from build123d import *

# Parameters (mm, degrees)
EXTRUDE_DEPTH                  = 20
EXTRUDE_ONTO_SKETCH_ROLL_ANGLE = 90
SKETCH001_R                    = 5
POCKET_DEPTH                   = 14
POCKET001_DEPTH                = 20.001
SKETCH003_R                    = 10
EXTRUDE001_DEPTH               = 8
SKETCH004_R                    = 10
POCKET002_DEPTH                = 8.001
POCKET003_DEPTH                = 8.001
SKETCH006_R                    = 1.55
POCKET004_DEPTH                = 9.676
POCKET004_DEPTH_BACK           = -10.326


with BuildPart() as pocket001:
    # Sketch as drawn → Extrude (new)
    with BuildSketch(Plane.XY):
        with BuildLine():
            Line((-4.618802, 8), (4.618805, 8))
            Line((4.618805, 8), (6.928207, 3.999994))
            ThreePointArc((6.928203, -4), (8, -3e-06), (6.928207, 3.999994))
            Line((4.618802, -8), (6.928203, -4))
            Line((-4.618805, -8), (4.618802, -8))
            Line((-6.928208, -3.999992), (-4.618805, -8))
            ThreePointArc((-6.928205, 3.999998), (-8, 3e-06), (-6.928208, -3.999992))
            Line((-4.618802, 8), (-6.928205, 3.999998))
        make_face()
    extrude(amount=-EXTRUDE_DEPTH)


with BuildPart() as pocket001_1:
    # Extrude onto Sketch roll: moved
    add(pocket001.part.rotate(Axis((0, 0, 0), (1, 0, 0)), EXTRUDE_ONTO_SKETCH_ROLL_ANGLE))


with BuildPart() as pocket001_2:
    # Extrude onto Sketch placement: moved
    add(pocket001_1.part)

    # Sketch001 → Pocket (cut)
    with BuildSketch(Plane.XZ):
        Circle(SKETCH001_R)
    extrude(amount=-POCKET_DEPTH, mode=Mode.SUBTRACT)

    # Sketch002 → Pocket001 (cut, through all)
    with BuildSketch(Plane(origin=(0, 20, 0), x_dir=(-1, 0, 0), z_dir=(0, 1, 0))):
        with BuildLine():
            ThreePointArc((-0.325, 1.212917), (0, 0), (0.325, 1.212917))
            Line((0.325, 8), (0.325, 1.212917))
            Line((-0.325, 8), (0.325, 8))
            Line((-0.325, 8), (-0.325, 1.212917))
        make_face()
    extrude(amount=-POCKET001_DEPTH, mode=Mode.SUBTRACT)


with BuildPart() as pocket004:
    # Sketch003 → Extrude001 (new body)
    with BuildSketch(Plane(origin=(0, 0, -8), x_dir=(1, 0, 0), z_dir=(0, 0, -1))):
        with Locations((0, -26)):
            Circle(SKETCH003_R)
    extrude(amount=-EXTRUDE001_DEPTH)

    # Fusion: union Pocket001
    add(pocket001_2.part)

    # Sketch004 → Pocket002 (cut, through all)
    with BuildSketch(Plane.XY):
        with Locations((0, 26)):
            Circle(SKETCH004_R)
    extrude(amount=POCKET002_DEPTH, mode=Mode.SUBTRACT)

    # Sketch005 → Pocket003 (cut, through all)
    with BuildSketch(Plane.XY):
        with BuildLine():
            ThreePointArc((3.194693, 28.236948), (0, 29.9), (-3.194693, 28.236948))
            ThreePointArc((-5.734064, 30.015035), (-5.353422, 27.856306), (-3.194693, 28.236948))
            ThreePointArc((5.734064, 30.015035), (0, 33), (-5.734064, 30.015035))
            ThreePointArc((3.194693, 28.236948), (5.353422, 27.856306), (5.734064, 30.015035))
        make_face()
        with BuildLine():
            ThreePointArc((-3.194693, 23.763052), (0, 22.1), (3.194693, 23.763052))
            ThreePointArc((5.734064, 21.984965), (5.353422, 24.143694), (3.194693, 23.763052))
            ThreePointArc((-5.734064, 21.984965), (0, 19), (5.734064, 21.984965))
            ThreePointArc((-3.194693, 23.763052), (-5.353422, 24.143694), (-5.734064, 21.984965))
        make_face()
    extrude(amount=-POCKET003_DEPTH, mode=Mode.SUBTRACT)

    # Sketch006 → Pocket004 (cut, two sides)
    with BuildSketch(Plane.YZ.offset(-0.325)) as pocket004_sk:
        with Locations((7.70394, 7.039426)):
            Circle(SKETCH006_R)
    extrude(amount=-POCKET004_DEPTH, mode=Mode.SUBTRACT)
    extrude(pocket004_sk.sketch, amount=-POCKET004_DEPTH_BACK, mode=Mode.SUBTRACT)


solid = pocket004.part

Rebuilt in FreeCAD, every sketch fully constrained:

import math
import FreeCAD as App
import Part
import Sketcher
Q = App.Units.Quantity

doc = App.newDocument("Part")
params = doc.addObject("Spreadsheet::Sheet", "Params")
for row, (alias, value) in enumerate([
    ("sketch1_radius", "8 mm"),
    ("pad1_length", "20 mm"),
    ("sketch2_diameter", "10 mm"),
    ("pocket1_length", "14 mm"),
    ("sketch3_radius", "0.65 mm"),
    ("sketch3_width", "0.65 mm"),
    ("sketch4_diameter", "20 mm"),
    ("pad2_length", "8 mm"),
    ("sketch5_diameter", "20 mm"),
    ("sketch6_radius", "6.999999 mm"),
    ("sketch6_radius2", "3.9 mm"),
    ("sketch7_diameter", "3.1 mm"),
], start=1):
    params.set(f"A{row}", alias)
    params.set(f"B{row}", "=" + value)
    params.setAlias(f"B{row}", alias)

body = doc.addObject("PartDesign::Body", "Body")

sketch1 = body.newObject("Sketcher::SketchObject", "Sketch")
sketch1.AttachmentSupport = (doc.getObject("XY_Plane"), [""])
sketch1.MapMode = "FlatFace"
sketch1.addGeometry(Part.LineSegment(App.Vector(4.6, 8, 0), App.Vector(-4.6, 8, 0)), False)
sketch1.addGeometry(Part.LineSegment(App.Vector(-4.6, 8, 0), App.Vector(-6.9, 4, 0)), False)
sketch1.addGeometry(Part.ArcOfCircle(Part.Circle(App.Vector(0, 0, 0), App.Vector(0, 0, 1), 8), math.radians(150), math.radians(210)), False)
sketch1.addGeometry(Part.LineSegment(App.Vector(-6.9, -4, 0), App.Vector(-4.6, -8, 0)), False)
sketch1.addGeometry(Part.LineSegment(App.Vector(-4.6, -8, 0), App.Vector(4.6, -8, 0)), False)
sketch1.addGeometry(Part.LineSegment(App.Vector(4.6, -8, 0), App.Vector(6.9, -4, 0)), False)
sketch1.addGeometry(Part.ArcOfCircle(Part.Circle(App.Vector(0, 0, 0), App.Vector(0, 0, 1), 8), math.radians(-30), math.radians(30)), False)
sketch1.addGeometry(Part.LineSegment(App.Vector(6.9, 4, 0), App.Vector(4.6, 8, 0)), False)
sketch1.addConstraint(Sketcher.Constraint("Coincident", 0, 2, 1, 1))
sketch1.addConstraint(Sketcher.Constraint("Tangent", 1, 2, 2, 1))
sketch1.addConstraint(Sketcher.Constraint("Tangent", 2, 2, 3, 1))
sketch1.addConstraint(Sketcher.Constraint("Coincident", 3, 2, 4, 1))
sketch1.addConstraint(Sketcher.Constraint("Coincident", 4, 2, 5, 1))
sketch1.addConstraint(Sketcher.Constraint("Tangent", 5, 2, 6, 1))
sketch1.addConstraint(Sketcher.Constraint("Tangent", 6, 2, 7, 1))
sketch1.addConstraint(Sketcher.Constraint("Coincident", 7, 2, 0, 1))
sketch1.addConstraint(Sketcher.Constraint("Horizontal", 0))
sketch1.addConstraint(Sketcher.Constraint("Horizontal", 4))
sketch1.addConstraint(Sketcher.Constraint("Coincident", 2, 3, -1, 1))
sketch1.addConstraint(Sketcher.Constraint("Coincident", 6, 3, -1, 1))
sketch1.addConstraint(Sketcher.Constraint("Symmetric", 0, 2, 4, 2, -1, 1))
sketch1.addConstraint(Sketcher.Constraint("Symmetric", 2, 2, 6, 2, -1, 1))
sketch1.addConstraint(Sketcher.Constraint("Radius", 6, 8.0))
sketch1.addConstraint(Sketcher.Constraint("Angle", 1, Q("-120.000008 deg")))
sketch1.addConstraint(Sketcher.Constraint("DistanceY", -1, 1, 0, 2, 8.0))
sketch1.addConstraint(Sketcher.Constraint("DistanceX", 1, 2, 3, 2, 2.3094))
sketch1.setExpression("Constraints[14]", "Params.sketch1_radius")
pad1 = body.newObject("PartDesign::Pad", "Pad")
pad1.Profile = sketch1
pad1.setExpression("Length", "Params.pad1_length")
pad1.Reversed = True
body2 = doc.addObject("PartDesign::Body", "Body001")
doc.recompute()

body.Placement = App.Placement(App.Vector(0, 0, 0), App.Rotation(App.Vector(1, 0, 0), 90))
boolean = body2.newObject("PartDesign::Boolean", "Boolean")
boolean.Type = "Fuse"
boolean.addObjects([body])

sketch2 = body2.newObject("Sketcher::SketchObject", "Sketch001")
sketch2.AttachmentSupport = (doc.getObject("XZ_Plane001"), [""])
sketch2.MapMode = "FlatFace"
sketch2.addGeometry(Part.Circle(App.Vector(0, 0, 0), App.Vector(0, 0, 1), 5), False)
sketch2.addConstraint(Sketcher.Constraint("Coincident", 0, 3, -1, 1))
sketch2.addConstraint(Sketcher.Constraint("Diameter", 0, 10.0))
sketch2.setExpression("Constraints[1]", "Params.sketch2_diameter")
pocket1 = body2.newObject("PartDesign::Pocket", "Pocket")
pocket1.Profile = sketch2
pocket1.setExpression("Length", "Params.pocket1_length")

sketch3 = body2.newObject("Sketcher::SketchObject", "Sketch002")
sketch3.AttachmentSupport = (doc.getObject("XZ_Plane001"), [""])
sketch3.MapMode = "FlatFace"
sketch3.AttachmentOffset = App.Placement(App.Vector(0, 0, -20), App.Rotation())
sketch3.addGeometry(Part.ArcOfCircle(Part.Circle(App.Vector(0, 0.7, 0), App.Vector(0, 0, 1), 0.7), math.radians(120), math.radians(420)), False)
sketch3.addGeometry(Part.LineSegment(App.Vector(-0.3, 1.2, 0), App.Vector(-0.3, 8, 0)), False)
sketch3.addGeometry(Part.LineSegment(App.Vector(-0.3, 8, 0), App.Vector(0.3, 8, 0)), False)
sketch3.addGeometry(Part.LineSegment(App.Vector(0.3, 8, 0), App.Vector(0.3, 1.2, 0)), False)
sketch3.addConstraint(Sketcher.Constraint("Coincident", 0, 1, 1, 1))
sketch3.addConstraint(Sketcher.Constraint("Coincident", 1, 2, 2, 1))
sketch3.addConstraint(Sketcher.Constraint("Coincident", 2, 2, 3, 1))
sketch3.addConstraint(Sketcher.Constraint("Coincident", 3, 2, 0, 2))
sketch3.addConstraint(Sketcher.Constraint("Vertical", 1))
sketch3.addConstraint(Sketcher.Constraint("Horizontal", 2))
sketch3.addConstraint(Sketcher.Constraint("Vertical", 3))
sketch3.addConstraint(Sketcher.Constraint("Symmetric", 0, 1, 3, 2, -2))
sketch3.addConstraint(Sketcher.Constraint("Radius", 0, 0.65))
sketch3.addConstraint(Sketcher.Constraint("DistanceY", -1, 1, 1, 2, 8.0))
sketch3.addConstraint(Sketcher.Constraint("DistanceX", 2, 1, 2, 2, 0.65))
sketch3.addConstraint(Sketcher.Constraint("DistanceY", -1, 1, 0, 3, 0.65))
sketch3.setExpression("Constraints[8]", "Params.sketch3_radius")
sketch3.setExpression("Constraints[10]", "Params.sketch3_width")
pocket2 = body2.newObject("PartDesign::Pocket", "Pocket001")
pocket2.Profile = sketch3
pocket2.Type = "ThroughAll"
pocket2.Reversed = True
body3 = doc.addObject("PartDesign::Body", "Body002")

sketch4 = body3.newObject("Sketcher::SketchObject", "Sketch003")
sketch4.AttachmentSupport = (doc.getObject("XY_Plane002"), [""])
sketch4.MapMode = "FlatFace"
sketch4.AttachmentOffset = App.Placement(App.Vector(0, 0, -8), App.Rotation())
sketch4.addGeometry(Part.Circle(App.Vector(0, 26, 0), App.Vector(0, 0, 1), 10), False)
sketch4.addConstraint(Sketcher.Constraint("PointOnObject", 0, 3, -2))
sketch4.addConstraint(Sketcher.Constraint("Diameter", 0, 20.0))
sketch4.addConstraint(Sketcher.Constraint("DistanceY", -1, 1, 0, 3, 26.0))
sketch4.setExpression("Constraints[1]", "Params.sketch4_diameter")
pad2 = body3.newObject("PartDesign::Pad", "Pad001")
pad2.Profile = sketch4
pad2.setExpression("Length", "Params.pad2_length")
doc.recompute()

boolean2 = body3.newObject("PartDesign::Boolean", "Boolean001")
boolean2.Type = "Fuse"
boolean2.addObjects([body2])

sketch5 = body3.newObject("Sketcher::SketchObject", "Sketch004")
sketch5.AttachmentSupport = (doc.getObject("XY_Plane002"), [""])
sketch5.MapMode = "FlatFace"
sketch5.addGeometry(Part.Circle(App.Vector(0, 26, 0), App.Vector(0, 0, 1), 10), False)
sketch5.addConstraint(Sketcher.Constraint("PointOnObject", 0, 3, -2))
sketch5.addConstraint(Sketcher.Constraint("Diameter", 0, 20.0))
sketch5.addConstraint(Sketcher.Constraint("DistanceY", -1, 1, 0, 3, 26.0))
sketch5.setExpression("Constraints[1]", "Params.sketch5_diameter")
pocket3 = body3.newObject("PartDesign::Pocket", "Pocket002")
pocket3.Profile = sketch5
pocket3.Type = "ThroughAll"
pocket3.Reversed = True

sketch6 = body3.newObject("Sketcher::SketchObject", "Sketch005")
sketch6.AttachmentSupport = (doc.getObject("XY_Plane002"), [""])
sketch6.MapMode = "FlatFace"
sketch6.addGeometry(Part.ArcOfCircle(Part.Circle(App.Vector(0, 26, 0), App.Vector(0, 0, 1), 3.9), math.radians(35), math.radians(145)), False)
sketch6.addGeometry(Part.ArcOfCircle(Part.Circle(App.Vector(4.5, 29.1, 0), App.Vector(0, 0, 1), 1.5), math.radians(-145), math.radians(35)), False)
sketch6.addGeometry(Part.ArcOfCircle(Part.Circle(App.Vector(0, 26, 0), App.Vector(0, 0, 1), 7), math.radians(35), math.radians(145)), False)
sketch6.addGeometry(Part.ArcOfCircle(Part.Circle(App.Vector(-4.5, 29.1, 0), App.Vector(0, 0, 1), 1.5), math.radians(145), math.radians(325)), False)
sketch6.addGeometry(Part.ArcOfCircle(Part.Circle(App.Vector(0, 26, 0), App.Vector(0, 0, 1), 3.9), math.radians(-145), math.radians(-35)), False)
sketch6.addGeometry(Part.ArcOfCircle(Part.Circle(App.Vector(-4.5, 22.9, 0), App.Vector(0, 0, 1), 1.5), math.radians(35), math.radians(215)), False)
sketch6.addGeometry(Part.ArcOfCircle(Part.Circle(App.Vector(0, 26, 0), App.Vector(0, 0, 1), 7), math.radians(-145), math.radians(-35)), False)
sketch6.addGeometry(Part.ArcOfCircle(Part.Circle(App.Vector(4.5, 22.9, 0), App.Vector(0, 0, 1), 1.5), math.radians(-35), math.radians(145)), False)
sketch6.addConstraint(Sketcher.Constraint("Tangent", 0, 1, 1, 1))
sketch6.addConstraint(Sketcher.Constraint("Tangent", 1, 2, 2, 1))
sketch6.addConstraint(Sketcher.Constraint("Tangent", 2, 2, 3, 1))
sketch6.addConstraint(Sketcher.Constraint("Tangent", 3, 2, 0, 2))
sketch6.addConstraint(Sketcher.Constraint("Tangent", 4, 1, 5, 1))
sketch6.addConstraint(Sketcher.Constraint("Tangent", 5, 2, 6, 1))
sketch6.addConstraint(Sketcher.Constraint("Tangent", 6, 2, 7, 1))
sketch6.addConstraint(Sketcher.Constraint("Tangent", 7, 2, 4, 2))
sketch6.addConstraint(Sketcher.Constraint("Coincident", 2, 3, 0, 3))
sketch6.addConstraint(Sketcher.Constraint("Coincident", 4, 3, 0, 3))
sketch6.addConstraint(Sketcher.Constraint("Coincident", 6, 3, 0, 3))
sketch6.addConstraint(Sketcher.Constraint("Equal", 0, 4))
sketch6.addConstraint(Sketcher.Constraint("Equal", 3, 5))
sketch6.addConstraint(Sketcher.Constraint("Symmetric", 1, 3, 3, 3, -2))
sketch6.addConstraint(Sketcher.Constraint("Horizontal", 5, 3, 7, 3))
sketch6.addConstraint(Sketcher.Constraint("Vertical", 3, 3, 5, 3))
sketch6.addConstraint(Sketcher.Constraint("Radius", 2, 6.999999))
sketch6.addConstraint(Sketcher.Constraint("Radius", 0, 3.9))
sketch6.addConstraint(Sketcher.Constraint("DistanceY", -1, 1, 0, 3, 26.0))
sketch6.addConstraint(Sketcher.Constraint("DistanceX", -1, 1, 1, 3, 4.464378))
sketch6.setExpression("Constraints[16]", "Params.sketch6_radius")
sketch6.setExpression("Constraints[17]", "Params.sketch6_radius2")
pocket4 = body3.newObject("PartDesign::Pocket", "Pocket003")
pocket4.Profile = sketch6
pocket4.Type = "ThroughAll"

sketch7 = body3.newObject("Sketcher::SketchObject", "Sketch006")
sketch7.AttachmentSupport = (doc.getObject("YZ_Plane002"), [""])
sketch7.MapMode = "FlatFace"
sketch7.AttachmentOffset = App.Placement(App.Vector(0, 0, -0.325), App.Rotation())
sketch7.addGeometry(Part.Circle(App.Vector(7.7, 7, 0), App.Vector(0, 0, 1), 1.6), False)
sketch7.addConstraint(Sketcher.Constraint("Diameter", 0, 3.1))
sketch7.addConstraint(Sketcher.Constraint("DistanceX", -1, 1, 0, 3, 7.70394))
sketch7.addConstraint(Sketcher.Constraint("DistanceY", -1, 1, 0, 3, 7.039426))
sketch7.setExpression("Constraints[0]", "Params.sketch7_diameter")
pocket5 = body3.newObject("PartDesign::Pocket", "Pocket004")
pocket5.Profile = sketch7
pocket5.Type = "ThroughAll"
pocket5.Midplane = True

doc.recompute()
